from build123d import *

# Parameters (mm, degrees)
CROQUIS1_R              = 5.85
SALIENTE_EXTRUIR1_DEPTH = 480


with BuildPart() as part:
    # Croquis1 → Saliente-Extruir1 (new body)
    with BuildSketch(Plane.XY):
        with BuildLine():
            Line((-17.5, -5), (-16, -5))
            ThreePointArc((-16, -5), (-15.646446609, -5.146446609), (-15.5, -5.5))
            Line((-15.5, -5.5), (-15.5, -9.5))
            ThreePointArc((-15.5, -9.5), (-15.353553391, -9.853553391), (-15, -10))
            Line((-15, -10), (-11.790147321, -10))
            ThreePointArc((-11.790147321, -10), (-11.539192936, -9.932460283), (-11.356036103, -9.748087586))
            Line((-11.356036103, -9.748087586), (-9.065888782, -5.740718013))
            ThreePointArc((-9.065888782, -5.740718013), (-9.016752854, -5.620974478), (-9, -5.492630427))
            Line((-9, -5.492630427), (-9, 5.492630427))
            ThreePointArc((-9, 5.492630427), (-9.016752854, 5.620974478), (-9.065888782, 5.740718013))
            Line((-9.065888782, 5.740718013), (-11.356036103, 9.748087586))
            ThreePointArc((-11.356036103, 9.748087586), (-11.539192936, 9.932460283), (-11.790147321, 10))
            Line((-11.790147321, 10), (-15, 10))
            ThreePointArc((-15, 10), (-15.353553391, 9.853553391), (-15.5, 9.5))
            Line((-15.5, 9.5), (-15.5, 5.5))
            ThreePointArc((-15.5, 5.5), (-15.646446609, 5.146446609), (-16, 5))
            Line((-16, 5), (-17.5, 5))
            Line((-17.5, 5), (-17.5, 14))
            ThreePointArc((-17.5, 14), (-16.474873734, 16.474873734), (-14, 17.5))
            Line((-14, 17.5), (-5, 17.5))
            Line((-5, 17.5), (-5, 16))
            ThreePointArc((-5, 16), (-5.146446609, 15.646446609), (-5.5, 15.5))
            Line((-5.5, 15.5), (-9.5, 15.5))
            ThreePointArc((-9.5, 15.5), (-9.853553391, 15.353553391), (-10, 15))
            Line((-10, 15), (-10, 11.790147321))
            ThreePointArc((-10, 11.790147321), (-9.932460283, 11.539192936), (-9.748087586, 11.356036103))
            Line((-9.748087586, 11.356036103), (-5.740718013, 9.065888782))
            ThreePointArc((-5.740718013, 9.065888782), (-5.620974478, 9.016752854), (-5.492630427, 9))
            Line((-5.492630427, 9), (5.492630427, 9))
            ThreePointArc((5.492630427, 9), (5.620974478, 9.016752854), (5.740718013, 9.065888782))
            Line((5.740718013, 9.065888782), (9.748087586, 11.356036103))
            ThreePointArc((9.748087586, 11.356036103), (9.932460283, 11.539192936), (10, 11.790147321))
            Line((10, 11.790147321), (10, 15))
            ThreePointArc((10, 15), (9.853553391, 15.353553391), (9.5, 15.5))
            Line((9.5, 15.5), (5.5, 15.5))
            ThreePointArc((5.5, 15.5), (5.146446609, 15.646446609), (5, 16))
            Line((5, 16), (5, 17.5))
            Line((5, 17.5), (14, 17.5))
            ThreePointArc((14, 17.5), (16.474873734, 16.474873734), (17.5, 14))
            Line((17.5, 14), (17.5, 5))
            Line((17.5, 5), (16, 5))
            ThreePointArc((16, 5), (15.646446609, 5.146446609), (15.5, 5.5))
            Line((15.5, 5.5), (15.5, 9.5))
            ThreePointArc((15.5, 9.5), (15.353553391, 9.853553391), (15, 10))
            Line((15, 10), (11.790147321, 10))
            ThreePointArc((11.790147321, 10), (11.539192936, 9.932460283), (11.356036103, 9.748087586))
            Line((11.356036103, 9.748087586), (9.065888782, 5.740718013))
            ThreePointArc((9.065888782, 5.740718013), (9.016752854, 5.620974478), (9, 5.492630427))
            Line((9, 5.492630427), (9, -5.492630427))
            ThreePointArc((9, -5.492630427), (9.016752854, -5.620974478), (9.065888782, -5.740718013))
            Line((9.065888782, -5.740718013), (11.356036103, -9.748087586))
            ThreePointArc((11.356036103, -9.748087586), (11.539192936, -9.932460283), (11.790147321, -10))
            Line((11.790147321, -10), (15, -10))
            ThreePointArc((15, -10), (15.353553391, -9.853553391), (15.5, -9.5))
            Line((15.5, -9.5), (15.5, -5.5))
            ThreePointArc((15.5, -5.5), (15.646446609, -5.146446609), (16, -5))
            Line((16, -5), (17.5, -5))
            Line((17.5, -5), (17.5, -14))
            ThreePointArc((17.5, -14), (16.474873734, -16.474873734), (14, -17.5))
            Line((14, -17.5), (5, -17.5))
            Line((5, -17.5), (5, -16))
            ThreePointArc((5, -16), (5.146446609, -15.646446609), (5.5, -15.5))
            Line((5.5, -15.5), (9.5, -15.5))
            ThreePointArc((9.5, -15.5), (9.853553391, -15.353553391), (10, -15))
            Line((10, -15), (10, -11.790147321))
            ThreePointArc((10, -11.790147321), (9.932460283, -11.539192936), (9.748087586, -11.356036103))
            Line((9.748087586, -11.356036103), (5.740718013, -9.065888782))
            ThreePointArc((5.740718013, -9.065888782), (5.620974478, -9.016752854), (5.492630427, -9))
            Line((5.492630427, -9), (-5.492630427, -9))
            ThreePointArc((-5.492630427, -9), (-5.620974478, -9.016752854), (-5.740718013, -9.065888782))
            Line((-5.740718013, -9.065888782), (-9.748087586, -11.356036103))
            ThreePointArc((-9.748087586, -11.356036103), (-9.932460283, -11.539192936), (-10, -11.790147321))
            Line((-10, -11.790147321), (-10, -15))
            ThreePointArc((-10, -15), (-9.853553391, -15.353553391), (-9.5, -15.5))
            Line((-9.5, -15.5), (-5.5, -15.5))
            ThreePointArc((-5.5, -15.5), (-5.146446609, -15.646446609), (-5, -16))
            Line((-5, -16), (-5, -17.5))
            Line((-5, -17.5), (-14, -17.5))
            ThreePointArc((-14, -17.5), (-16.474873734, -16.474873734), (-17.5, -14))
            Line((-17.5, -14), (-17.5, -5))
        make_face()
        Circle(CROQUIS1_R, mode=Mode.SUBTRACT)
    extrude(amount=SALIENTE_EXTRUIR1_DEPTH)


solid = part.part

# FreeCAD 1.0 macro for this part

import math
import FreeCAD as App
import Part
import Sketcher

V = App.Vector
Q = App.Units.Quantity

doc = App.newDocument("Part")
body = doc.addObject("PartDesign::Body", "Body")

# Sketch on XY plane
sketch1 = doc.addObject("Sketcher::SketchObject", "Sketch")
body.addObject(sketch1)
sketch1.AttachmentSupport = (doc.XY_Plane, [""])
sketch1.MapMode = "FlatFace"
sketch1.addGeometry([
    Part.LineSegment(V(-16, -5, 0), V(-17.5, -5, 0)),  # 0
    Part.LineSegment(V(-17.5, -5, 0), V(-17.5, -14, 0)),  # 1
    Part.ArcOfCircle(Part.Circle(V(-14, -14, 0), V(0, 0, 1), 3.5), math.radians(-180), math.radians(-90)),  # 2
    Part.LineSegment(V(-14, -17.5, 0), V(-5, -17.5, 0)),  # 3
    Part.LineSegment(V(-5, -17.5, 0), V(-5, -16, 0)),  # 4
    Part.ArcOfCircle(Part.Circle(V(-5.5, -16, 0), V(0, 0, 1), 0.5), math.radians(0), math.radians(90)),  # 5
    Part.LineSegment(V(-5.5, -15.5, 0), V(-9.5, -15.5, 0)),  # 6
    Part.ArcOfCircle(Part.Circle(V(-9.5, -15, 0), V(0, 0, 1), 0.5), math.radians(180), math.radians(270)),  # 7
    Part.LineSegment(V(-10, -15, 0), V(-10, -11.79, 0)),  # 8
    Part.ArcOfCircle(Part.Circle(V(-9.5, -11.79, 0), V(0, 0, 1), 0.5), math.radians(120), math.radians(180)),  # 9
    Part.LineSegment(V(-9.75, -11.36, 0), V(-5.74, -9.07, 0)),  # 10
    Part.ArcOfCircle(Part.Circle(V(-5.49, -9.5, 0), V(0, 0, 1), 0.5), math.radians(90), math.radians(120)),  # 11
    Part.LineSegment(V(-5.49, -9, 0), V(5.49, -9, 0)),  # 12
    Part.ArcOfCircle(Part.Circle(V(5.49, -9.5, 0), V(0, 0, 1), 0.5), math.radians(60), math.radians(90)),  # 13
    Part.LineSegment(V(5.74, -9.07, 0), V(9.75, -11.36, 0)),  # 14
    Part.ArcOfCircle(Part.Circle(V(9.5, -11.79, 0), V(0, 0, 1), 0.5), math.radians(0), math.radians(60)),  # 15
    Part.LineSegment(V(10, -11.79, 0), V(10, -15, 0)),  # 16
    Part.ArcOfCircle(Part.Circle(V(9.5, -15, 0), V(0, 0, 1), 0.5), math.radians(-90), math.radians(0)),  # 17
    Part.LineSegment(V(9.5, -15.5, 0), V(5.5, -15.5, 0)),  # 18
    Part.ArcOfCircle(Part.Circle(V(5.5, -16, 0), V(0, 0, 1), 0.5), math.radians(90), math.radians(180)),  # 19
    Part.LineSegment(V(5, -16, 0), V(5, -17.5, 0)),  # 20
    Part.LineSegment(V(5, -17.5, 0), V(14, -17.5, 0)),  # 21
    Part.ArcOfCircle(Part.Circle(V(14, -14, 0), V(0, 0, 1), 3.5), math.radians(-90), math.radians(0)),  # 22
    Part.LineSegment(V(17.5, -14, 0), V(17.5, -5, 0)),  # 23
    Part.LineSegment(V(17.5, -5, 0), V(16, -5, 0)),  # 24
    Part.ArcOfCircle(Part.Circle(V(16, -5.5, 0), V(0, 0, 1), 0.5), math.radians(90), math.radians(180)),  # 25
    Part.LineSegment(V(15.5, -5.5, 0), V(15.5, -9.5, 0)),  # 26
    Part.ArcOfCircle(Part.Circle(V(15, -9.5, 0), V(0, 0, 1), 0.5), math.radians(-90), math.radians(0)),  # 27
    Part.LineSegment(V(15, -10, 0), V(11.79, -10, 0)),  # 28
    Part.ArcOfCircle(Part.Circle(V(11.79, -9.5, 0), V(0, 0, 1), 0.5), math.radians(-150), math.radians(-90)),  # 29
    Part.LineSegment(V(11.36, -9.75, 0), V(9.07, -5.74, 0)),  # 30
    Part.ArcOfCircle(Part.Circle(V(9.5, -5.49, 0), V(0, 0, 1), 0.5), math.radians(-180), math.radians(-150)),  # 31
    Part.LineSegment(V(9, -5.49, 0), V(9, 5.49, 0)),  # 32
    Part.ArcOfCircle(Part.Circle(V(9.5, 5.49, 0), V(0, 0, 1), 0.5), math.radians(150), math.radians(180)),  # 33
    Part.LineSegment(V(9.07, 5.74, 0), V(11.36, 9.75, 0)),  # 34
    Part.ArcOfCircle(Part.Circle(V(11.79, 9.5, 0), V(0, 0, 1), 0.5), math.radians(90), math.radians(150)),  # 35
    Part.LineSegment(V(11.79, 10, 0), V(15, 10, 0)),  # 36
    Part.ArcOfCircle(Part.Circle(V(15, 9.5, 0), V(0, 0, 1), 0.5), math.radians(0), math.radians(90)),  # 37
    Part.LineSegment(V(15.5, 9.5, 0), V(15.5, 5.5, 0)),  # 38
    Part.ArcOfCircle(Part.Circle(V(16, 5.5, 0), V(0, 0, 1), 0.5), math.radians(180), math.radians(270)),  # 39
    Part.LineSegment(V(16, 5, 0), V(17.5, 5, 0)),  # 40
    Part.LineSegment(V(17.5, 5, 0), V(17.5, 14, 0)),  # 41
    Part.ArcOfCircle(Part.Circle(V(14, 14, 0), V(0, 0, 1), 3.5), math.radians(0), math.radians(90)),  # 42
    Part.LineSegment(V(14, 17.5, 0), V(5, 17.5, 0)),  # 43
    Part.LineSegment(V(5, 17.5, 0), V(5, 16, 0)),  # 44
    Part.ArcOfCircle(Part.Circle(V(5.5, 16, 0), V(0, 0, 1), 0.5), math.radians(180), math.radians(270)),  # 45
    Part.LineSegment(V(5.5, 15.5, 0), V(9.5, 15.5, 0)),  # 46
    Part.ArcOfCircle(Part.Circle(V(9.5, 15, 0), V(0, 0, 1), 0.5), math.radians(0), math.radians(90)),  # 47
    Part.LineSegment(V(10, 15, 0), V(10, 11.79, 0)),  # 48
    Part.ArcOfCircle(Part.Circle(V(9.5, 11.79, 0), V(0, 0, 1), 0.5), math.radians(-60), math.radians(0)),  # 49
    Part.LineSegment(V(9.75, 11.36, 0), V(5.74, 9.07, 0)),  # 50
    Part.ArcOfCircle(Part.Circle(V(5.49, 9.5, 0), V(0, 0, 1), 0.5), math.radians(-90), math.radians(-60)),  # 51
    Part.LineSegment(V(5.49, 9, 0), V(-5.49, 9, 0)),  # 52
    Part.ArcOfCircle(Part.Circle(V(-5.49, 9.5, 0), V(0, 0, 1), 0.5), math.radians(-120), math.radians(-90)),  # 53
    Part.LineSegment(V(-5.74, 9.07, 0), V(-9.75, 11.36, 0)),  # 54
    Part.ArcOfCircle(Part.Circle(V(-9.5, 11.79, 0), V(0, 0, 1), 0.5), math.radians(-180), math.radians(-120)),  # 55
    Part.LineSegment(V(-10, 11.79, 0), V(-10, 15, 0)),  # 56
    Part.ArcOfCircle(Part.Circle(V(-9.5, 15, 0), V(0, 0, 1), 0.5), math.radians(90), math.radians(180)),  # 57
    Part.LineSegment(V(-9.5, 15.5, 0), V(-5.5, 15.5, 0)),  # 58
    Part.ArcOfCircle(Part.Circle(V(-5.5, 16, 0), V(0, 0, 1), 0.5), math.radians(-90), math.radians(0)),  # 59
    Part.LineSegment(V(-5, 16, 0), V(-5, 17.5, 0)),  # 60
    Part.LineSegment(V(-5, 17.5, 0), V(-14, 17.5, 0)),  # 61
    Part.ArcOfCircle(Part.Circle(V(-14, 14, 0), V(0, 0, 1), 3.5), math.radians(90), math.radians(180)),  # 62
    Part.LineSegment(V(-17.5, 14, 0), V(-17.5, 5, 0)),  # 63
    Part.LineSegment(V(-17.5, 5, 0), V(-16, 5, 0)),  # 64
    Part.ArcOfCircle(Part.Circle(V(-16, 5.5, 0), V(0, 0, 1), 0.5), math.radians(-90), math.radians(0)),  # 65
    Part.LineSegment(V(-15.5, 5.5, 0), V(-15.5, 9.5, 0)),  # 66
    Part.ArcOfCircle(Part.Circle(V(-15, 9.5, 0), V(0, 0, 1), 0.5), math.radians(90), math.radians(180)),  # 67
    Part.LineSegment(V(-15, 10, 0), V(-11.79, 10, 0)),  # 68
    Part.ArcOfCircle(Part.Circle(V(-11.79, 9.5, 0), V(0, 0, 1), 0.5), math.radians(30), math.radians(90)),  # 69
    Part.LineSegment(V(-11.36, 9.75, 0), V(-9.07, 5.74, 0)),  # 70
    Part.ArcOfCircle(Part.Circle(V(-9.5, 5.49, 0), V(0, 0, 1), 0.5), math.radians(0), math.radians(30)),  # 71
    Part.LineSegment(V(-9, 5.49, 0), V(-9, -5.49, 0)),  # 72
    Part.ArcOfCircle(Part.Circle(V(-9.5, -5.49, 0), V(0, 0, 1), 0.5), math.radians(-30), math.radians(0)),  # 73
    Part.LineSegment(V(-9.07, -5.74, 0), V(-11.36, -9.75, 0)),  # 74
    Part.ArcOfCircle(Part.Circle(V(-11.79, -9.5, 0), V(0, 0, 1), 0.5), math.radians(-90), math.radians(-30)),  # 75
    Part.LineSegment(V(-11.79, -10, 0), V(-15, -10, 0)),  # 76
    Part.ArcOfCircle(Part.Circle(V(-15, -9.5, 0), V(0, 0, 1), 0.5), math.radians(180), math.radians(270)),  # 77
    Part.LineSegment(V(-15.5, -9.5, 0), V(-15.5, -5.5, 0)),  # 78
    Part.ArcOfCircle(Part.Circle(V(-16, -5.5, 0), V(0, 0, 1), 0.5), math.radians(0), math.radians(90)),  # 79
    Part.Circle(V(0, 0, 0), V(0, 0, 1), 5.85),  # 80
], False)
sketch1.addConstraint([
    Sketcher.Constraint("Coincident", 0, 2, 1, 1),
    Sketcher.Constraint("Tangent", 1, 2, 2, 1),
    Sketcher.Constraint("Tangent", 2, 2, 3, 1),
    Sketcher.Constraint("Coincident", 3, 2, 4, 1),
    Sketcher.Constraint("Tangent", 4, 2, 5, 1),
    Sketcher.Constraint("Tangent", 5, 2, 6, 1),
    Sketcher.Constraint("Tangent", 6, 2, 7, 2),
    Sketcher.Constraint("Tangent", 7, 1, 8, 1),
    Sketcher.Constraint("Tangent", 8, 2, 9, 2),
    Sketcher.Constraint("Tangent", 9, 1, 10, 1),
    Sketcher.Constraint("Tangent", 10, 2, 11, 2),
    Sketcher.Constraint("Tangent", 11, 1, 12, 1),
    Sketcher.Constraint("Tangent", 12, 2, 13, 2),
    Sketcher.Constraint("Tangent", 13, 1, 14, 1),
    Sketcher.Constraint("Tangent", 14, 2, 15, 2),
    Sketcher.Constraint("Tangent", 15, 1, 16, 1),
    Sketcher.Constraint("Tangent", 16, 2, 17, 2),
    Sketcher.Constraint("Tangent", 17, 1, 18, 1),
    Sketcher.Constraint("Tangent", 18, 2, 19, 1),
    Sketcher.Constraint("Tangent", 19, 2, 20, 1),
    Sketcher.Constraint("Coincident", 20, 2, 21, 1),
    Sketcher.Constraint("Tangent", 21, 2, 22, 1),
    Sketcher.Constraint("Tangent", 22, 2, 23, 1),
    Sketcher.Constraint("Coincident", 23, 2, 24, 1),
    Sketcher.Constraint("Tangent", 24, 2, 25, 1),
    Sketcher.Constraint("Tangent", 25, 2, 26, 1),
    Sketcher.Constraint("Tangent", 26, 2, 27, 2),
    Sketcher.Constraint("Tangent", 27, 1, 28, 1),
    Sketcher.Constraint("Tangent", 28, 2, 29, 2),
    Sketcher.Constraint("Tangent", 29, 1, 30, 1),
    Sketcher.Constraint("Tangent", 30, 2, 31, 2),
    Sketcher.Constraint("Tangent", 31, 1, 32, 1),
    Sketcher.Constraint("Tangent", 32, 2, 33, 2),
    Sketcher.Constraint("Tangent", 33, 1, 34, 1),
    Sketcher.Constraint("Tangent", 34, 2, 35, 2),
    Sketcher.Constraint("Tangent", 35, 1, 36, 1),
    Sketcher.Constraint("Tangent", 36, 2, 37, 2),
    Sketcher.Constraint("Tangent", 37, 1, 38, 1),
    Sketcher.Constraint("Tangent", 38, 2, 39, 1),
    Sketcher.Constraint("Tangent", 39, 2, 40, 1),
    Sketcher.Constraint("Coincident", 40, 2, 41, 1),
    Sketcher.Constraint("Tangent", 41, 2, 42, 1),
    Sketcher.Constraint("Tangent", 42, 2, 43, 1),
    Sketcher.Constraint("Coincident", 43, 2, 44, 1),
    Sketcher.Constraint("Tangent", 44, 2, 45, 1),
    Sketcher.Constraint("Tangent", 45, 2, 46, 1),
    Sketcher.Constraint("Tangent", 46, 2, 47, 2),
    Sketcher.Constraint("Tangent", 47, 1, 48, 1),
    Sketcher.Constraint("Tangent", 48, 2, 49, 2),
    Sketcher.Constraint("Tangent", 49, 1, 50, 1),
    Sketcher.Constraint("Tangent", 50, 2, 51, 2),
    Sketcher.Constraint("Tangent", 51, 1, 52, 1),
    Sketcher.Constraint("Tangent", 52, 2, 53, 2),
    Sketcher.Constraint("Tangent", 53, 1, 54, 1),
    Sketcher.Constraint("Tangent", 54, 2, 55, 2),
    Sketcher.Constraint("Tangent", 55, 1, 56, 1),
    Sketcher.Constraint("Tangent", 56, 2, 57, 2),
    Sketcher.Constraint("Tangent", 57, 1, 58, 1),
    Sketcher.Constraint("Tangent", 58, 2, 59, 1),
    Sketcher.Constraint("Tangent", 59, 2, 60, 1),
    Sketcher.Constraint("Coincident", 60, 2, 61, 1),
    Sketcher.Constraint("Tangent", 61, 2, 62, 1),
    Sketcher.Constraint("Tangent", 62, 2, 63, 1),
    Sketcher.Constraint("Coincident", 63, 2, 64, 1),
    Sketcher.Constraint("Tangent", 64, 2, 65, 1),
    Sketcher.Constraint("Tangent", 65, 2, 66, 1),
    Sketcher.Constraint("Tangent", 66, 2, 67, 2),
    Sketcher.Constraint("Tangent", 67, 1, 68, 1),
    Sketcher.Constraint("Tangent", 68, 2, 69, 2),
    Sketcher.Constraint("Tangent", 69, 1, 70, 1),
    Sketcher.Constraint("Tangent", 70, 2, 71, 2),
    Sketcher.Constraint("Tangent", 71, 1, 72, 1),
    Sketcher.Constraint("Tangent", 72, 2, 73, 2),
    Sketcher.Constraint("Tangent", 73, 1, 74, 1),
    Sketcher.Constraint("Tangent", 74, 2, 75, 2),
    Sketcher.Constraint("Tangent", 75, 1, 76, 1),
    Sketcher.Constraint("Tangent", 76, 2, 77, 2),
    Sketcher.Constraint("Tangent", 77, 1, 78, 1),
    Sketcher.Constraint("Tangent", 78, 2, 79, 1),
    Sketcher.Constraint("Tangent", 79, 2, 0, 1),
    Sketcher.Constraint("Horizontal", 0),
    Sketcher.Constraint("Vertical", 1),
    Sketcher.Constraint("Horizontal", 3),
    Sketcher.Constraint("Vertical", 4),
    Sketcher.Constraint("Horizontal", 6),
    Sketcher.Constraint("Vertical", 8),
    Sketcher.Constraint("Horizontal", 12),
    Sketcher.Constraint("Vertical", 16),
    Sketcher.Constraint("Horizontal", 18),
    Sketcher.Constraint("Vertical", 20),
    Sketcher.Constraint("Horizontal", 21),
    Sketcher.Constraint("Vertical", 23),
    Sketcher.Constraint("Horizontal", 24),
    Sketcher.Constraint("Vertical", 26),
    Sketcher.Constraint("Horizontal", 28),
    Sketcher.Constraint("Vertical", 32),
    Sketcher.Constraint("Horizontal", 36),
    Sketcher.Constraint("Vertical", 38),
    Sketcher.Constraint("Horizontal", 40),
    Sketcher.Constraint("Vertical", 41),
    Sketcher.Constraint("Horizontal", 43),
    Sketcher.Constraint("Vertical", 44),
    Sketcher.Constraint("Horizontal", 46),
    Sketcher.Constraint("Vertical", 48),
    Sketcher.Constraint("Horizontal", 52),
    Sketcher.Constraint("Vertical", 56),
    Sketcher.Constraint("Horizontal", 58),
    Sketcher.Constraint("Vertical", 60),
    Sketcher.Constraint("Horizontal", 61),
    Sketcher.Constraint("Vertical", 63),
    Sketcher.Constraint("Horizontal", 64),
    Sketcher.Constraint("Vertical", 66),
    Sketcher.Constraint("Horizontal", 68),
    Sketcher.Constraint("Vertical", 72),
    Sketcher.Constraint("Horizontal", 76),
    Sketcher.Constraint("Vertical", 78),
    Sketcher.Constraint("Coincident", 80, 3, -1, 1),
    Sketcher.Constraint("Equal", 5, 7),
    Sketcher.Constraint("Equal", 7, 9),
    Sketcher.Constraint("Equal", 9, 11),
    Sketcher.Constraint("Equal", 11, 13),
    Sketcher.Constraint("Equal", 13, 15),
    Sketcher.Constraint("Equal", 15, 17),
    Sketcher.Constraint("Equal", 17, 19),
    Sketcher.Constraint("Equal", 2, 22),
    Sketcher.Constraint("Equal", 19, 25),
    Sketcher.Constraint("Equal", 25, 27),
    Sketcher.Constraint("Equal", 27, 29),
    Sketcher.Constraint("Equal", 29, 31),
    Sketcher.Constraint("Equal", 31, 33),
    Sketcher.Constraint("Equal", 33, 35),
    Sketcher.Constraint("Equal", 35, 37),
    Sketcher.Constraint("Equal", 37, 39),
    Sketcher.Constraint("Equal", 22, 42),
    Sketcher.Constraint("Equal", 39, 45),
    Sketcher.Constraint("Equal", 45, 47),
    Sketcher.Constraint("Equal", 47, 49),
    Sketcher.Constraint("Equal", 49, 51),
    Sketcher.Constraint("Equal", 51, 53),
    Sketcher.Constraint("Equal", 53, 55),
    Sketcher.Constraint("Equal", 55, 57),
    Sketcher.Constraint("Equal", 57, 59),
    Sketcher.Constraint("Equal", 42, 62),
    Sketcher.Constraint("Equal", 59, 65),
    Sketcher.Constraint("Equal", 65, 67),
    Sketcher.Constraint("Equal", 67, 69),
    Sketcher.Constraint("Equal", 69, 71),
    Sketcher.Constraint("Equal", 71, 73),
    Sketcher.Constraint("Equal", 73, 75),
    Sketcher.Constraint("Equal", 75, 77),
    Sketcher.Constraint("Equal", 77, 79),
    Sketcher.Constraint("Symmetric", 2, 3, 42, 3, -1, 1),
    Sketcher.Constraint("Symmetric", 5, 3, 45, 3, -1, 1),
    Sketcher.Constraint("Symmetric", 9, 3, 49, 3, -1, 1),
    Sketcher.Constraint("Symmetric", 11, 3, 51, 3, -1, 1),
    Sketcher.Constraint("Symmetric", 15, 3, 55, 3, -1, 1),
    Sketcher.Constraint("Symmetric", 19, 3, 59, 3, -1, 1),
    Sketcher.Constraint("Symmetric", 22, 3, 62, 3, -1, 1),
    Sketcher.Constraint("Symmetric", 25, 3, 65, 3, -1, 1),
    Sketcher.Constraint("Symmetric", 29, 3, 69, 3, -1, 1),
    Sketcher.Constraint("Symmetric", 31, 3, 71, 3, -1, 1),
    Sketcher.Constraint("Symmetric", 35, 3, 75, 3, -1, 1),
    Sketcher.Constraint("Symmetric", 39, 3, 79, 3, -1, 1),
    Sketcher.Constraint("Symmetric", 9, 3, 15, 3, -2),
    Sketcher.Constraint("Symmetric", 5, 3, 19, 3, -2),
    Sketcher.Constraint("Symmetric", 2, 3, 22, 3, -2),
    Sketcher.Constraint("Symmetric", 39, 3, 65, 3, -2),
    Sketcher.Constraint("Symmetric", 35, 3, 69, 3, -2),
    Sketcher.Constraint("Perpendicular", 10, 30),
    Sketcher.Constraint("Perpendicular", 14, 34),
    Sketcher.Constraint("Perpendicular", 34, 54),
    Sketcher.Constraint("Perpendicular", 54, 74),
    Sketcher.Constraint("Horizontal", 13, 3, 27, 3),
    Sketcher.Constraint("Horizontal", 33, 3, 71, 3),
    Sketcher.Constraint("Vertical", 17, 3, 31, 3),
    Sketcher.Constraint("Equal", 61, 1),
    Sketcher.Constraint("Equal", 64, 4),
    Sketcher.Constraint("Equal", 76, 8),
    Sketcher.Constraint("Equal", 58, 26),
    Sketcher.Constraint("Equal", 52, 32),
    Sketcher.Constraint("Diameter", 80, Q("11.7 mm")),
    Sketcher.Constraint("Radius", 2, Q("3.5 mm")),
    Sketcher.Constraint("Radius", 5, Q("0.5 mm")),
    Sketcher.Constraint("DistanceX", 3, 1, 3, 2, Q("9 mm")),
    Sketcher.Constraint("DistanceX", 6, 2, 6, 1, Q("4 mm")),
    Sketcher.Constraint("DistanceX", 0, 2, 0, 1, Q("1.5 mm")),
    Sketcher.Constraint("DistanceX", 2, 3, -1, 1, Q("14 mm")),
    Sketcher.Constraint("DistanceX", 12, 1, 12, 2, Q("10.985261 mm")),
    Sketcher.Constraint("DistanceX", 28, 2, 28, 1, Q("3.209853 mm")),
])
pad1 = doc.addObject("PartDesign::Pad", "Pad")
body.addObject(pad1)
pad1.Profile = sketch1
pad1.Length = 480

doc.recompute()
